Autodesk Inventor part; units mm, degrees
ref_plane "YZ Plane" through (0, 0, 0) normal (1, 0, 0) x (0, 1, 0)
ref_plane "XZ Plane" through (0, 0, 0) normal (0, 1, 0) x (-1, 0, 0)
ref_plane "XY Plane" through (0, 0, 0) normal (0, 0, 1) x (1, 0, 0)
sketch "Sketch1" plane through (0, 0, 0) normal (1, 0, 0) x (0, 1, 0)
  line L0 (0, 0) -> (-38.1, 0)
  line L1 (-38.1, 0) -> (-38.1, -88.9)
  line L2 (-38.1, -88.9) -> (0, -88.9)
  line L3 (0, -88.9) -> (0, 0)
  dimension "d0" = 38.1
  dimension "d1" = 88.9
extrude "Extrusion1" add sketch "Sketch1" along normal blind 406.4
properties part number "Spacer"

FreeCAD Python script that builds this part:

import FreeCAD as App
import Part
import Sketcher

V = App.Vector
Q = App.Units.Quantity


def add_polygon(sketch, points):
    """Adds a closed chain of lines whose ends are joined by coincident constraints."""
    first, n = sketch.GeometryCount, len(points)
    for a, b in zip(points, points[1:] + points[:1]):
        sketch.addGeometry(Part.LineSegment(App.Vector(*a, 0), App.Vector(*b, 0)), False)
    for i in range(n):
        sketch.addConstraint(Sketcher.Constraint("Coincident", first + i, 2, first + (i + 1) % n, 1))

doc = App.newDocument("Part")
body = doc.addObject("PartDesign::Body", "Body")

# Sketch on YZ plane
sketch1 = doc.addObject("Sketcher::SketchObject", "Sketch")
body.addObject(sketch1)
sketch1.AttachmentSupport = (doc.YZ_Plane, [""])
sketch1.MapMode = "FlatFace"
add_polygon(sketch1, [(0, -89), (0, 0), (-38, 0), (-38, -89)])  # lines 0-3
sketch1.addConstraint([
    Sketcher.Constraint("Vertical", 0),
    Sketcher.Constraint("Horizontal", 1),
    Sketcher.Constraint("Vertical", 2),
    Sketcher.Constraint("Horizontal", 3),
    Sketcher.Constraint("Coincident", 0, 2, -1, 1),
    Sketcher.Constraint("DistanceX", 1, 2, 1, 1, Q("1.5 in")),
    Sketcher.Constraint("DistanceY", 0, 1, 0, 2, Q("3.5 in")),
])
pad1 = doc.addObject("PartDesign::Pad", "Pad")
body.addObject(pad1)
pad1.Profile = sketch1
pad1.Length = Q("16 in")

doc.recompute()
